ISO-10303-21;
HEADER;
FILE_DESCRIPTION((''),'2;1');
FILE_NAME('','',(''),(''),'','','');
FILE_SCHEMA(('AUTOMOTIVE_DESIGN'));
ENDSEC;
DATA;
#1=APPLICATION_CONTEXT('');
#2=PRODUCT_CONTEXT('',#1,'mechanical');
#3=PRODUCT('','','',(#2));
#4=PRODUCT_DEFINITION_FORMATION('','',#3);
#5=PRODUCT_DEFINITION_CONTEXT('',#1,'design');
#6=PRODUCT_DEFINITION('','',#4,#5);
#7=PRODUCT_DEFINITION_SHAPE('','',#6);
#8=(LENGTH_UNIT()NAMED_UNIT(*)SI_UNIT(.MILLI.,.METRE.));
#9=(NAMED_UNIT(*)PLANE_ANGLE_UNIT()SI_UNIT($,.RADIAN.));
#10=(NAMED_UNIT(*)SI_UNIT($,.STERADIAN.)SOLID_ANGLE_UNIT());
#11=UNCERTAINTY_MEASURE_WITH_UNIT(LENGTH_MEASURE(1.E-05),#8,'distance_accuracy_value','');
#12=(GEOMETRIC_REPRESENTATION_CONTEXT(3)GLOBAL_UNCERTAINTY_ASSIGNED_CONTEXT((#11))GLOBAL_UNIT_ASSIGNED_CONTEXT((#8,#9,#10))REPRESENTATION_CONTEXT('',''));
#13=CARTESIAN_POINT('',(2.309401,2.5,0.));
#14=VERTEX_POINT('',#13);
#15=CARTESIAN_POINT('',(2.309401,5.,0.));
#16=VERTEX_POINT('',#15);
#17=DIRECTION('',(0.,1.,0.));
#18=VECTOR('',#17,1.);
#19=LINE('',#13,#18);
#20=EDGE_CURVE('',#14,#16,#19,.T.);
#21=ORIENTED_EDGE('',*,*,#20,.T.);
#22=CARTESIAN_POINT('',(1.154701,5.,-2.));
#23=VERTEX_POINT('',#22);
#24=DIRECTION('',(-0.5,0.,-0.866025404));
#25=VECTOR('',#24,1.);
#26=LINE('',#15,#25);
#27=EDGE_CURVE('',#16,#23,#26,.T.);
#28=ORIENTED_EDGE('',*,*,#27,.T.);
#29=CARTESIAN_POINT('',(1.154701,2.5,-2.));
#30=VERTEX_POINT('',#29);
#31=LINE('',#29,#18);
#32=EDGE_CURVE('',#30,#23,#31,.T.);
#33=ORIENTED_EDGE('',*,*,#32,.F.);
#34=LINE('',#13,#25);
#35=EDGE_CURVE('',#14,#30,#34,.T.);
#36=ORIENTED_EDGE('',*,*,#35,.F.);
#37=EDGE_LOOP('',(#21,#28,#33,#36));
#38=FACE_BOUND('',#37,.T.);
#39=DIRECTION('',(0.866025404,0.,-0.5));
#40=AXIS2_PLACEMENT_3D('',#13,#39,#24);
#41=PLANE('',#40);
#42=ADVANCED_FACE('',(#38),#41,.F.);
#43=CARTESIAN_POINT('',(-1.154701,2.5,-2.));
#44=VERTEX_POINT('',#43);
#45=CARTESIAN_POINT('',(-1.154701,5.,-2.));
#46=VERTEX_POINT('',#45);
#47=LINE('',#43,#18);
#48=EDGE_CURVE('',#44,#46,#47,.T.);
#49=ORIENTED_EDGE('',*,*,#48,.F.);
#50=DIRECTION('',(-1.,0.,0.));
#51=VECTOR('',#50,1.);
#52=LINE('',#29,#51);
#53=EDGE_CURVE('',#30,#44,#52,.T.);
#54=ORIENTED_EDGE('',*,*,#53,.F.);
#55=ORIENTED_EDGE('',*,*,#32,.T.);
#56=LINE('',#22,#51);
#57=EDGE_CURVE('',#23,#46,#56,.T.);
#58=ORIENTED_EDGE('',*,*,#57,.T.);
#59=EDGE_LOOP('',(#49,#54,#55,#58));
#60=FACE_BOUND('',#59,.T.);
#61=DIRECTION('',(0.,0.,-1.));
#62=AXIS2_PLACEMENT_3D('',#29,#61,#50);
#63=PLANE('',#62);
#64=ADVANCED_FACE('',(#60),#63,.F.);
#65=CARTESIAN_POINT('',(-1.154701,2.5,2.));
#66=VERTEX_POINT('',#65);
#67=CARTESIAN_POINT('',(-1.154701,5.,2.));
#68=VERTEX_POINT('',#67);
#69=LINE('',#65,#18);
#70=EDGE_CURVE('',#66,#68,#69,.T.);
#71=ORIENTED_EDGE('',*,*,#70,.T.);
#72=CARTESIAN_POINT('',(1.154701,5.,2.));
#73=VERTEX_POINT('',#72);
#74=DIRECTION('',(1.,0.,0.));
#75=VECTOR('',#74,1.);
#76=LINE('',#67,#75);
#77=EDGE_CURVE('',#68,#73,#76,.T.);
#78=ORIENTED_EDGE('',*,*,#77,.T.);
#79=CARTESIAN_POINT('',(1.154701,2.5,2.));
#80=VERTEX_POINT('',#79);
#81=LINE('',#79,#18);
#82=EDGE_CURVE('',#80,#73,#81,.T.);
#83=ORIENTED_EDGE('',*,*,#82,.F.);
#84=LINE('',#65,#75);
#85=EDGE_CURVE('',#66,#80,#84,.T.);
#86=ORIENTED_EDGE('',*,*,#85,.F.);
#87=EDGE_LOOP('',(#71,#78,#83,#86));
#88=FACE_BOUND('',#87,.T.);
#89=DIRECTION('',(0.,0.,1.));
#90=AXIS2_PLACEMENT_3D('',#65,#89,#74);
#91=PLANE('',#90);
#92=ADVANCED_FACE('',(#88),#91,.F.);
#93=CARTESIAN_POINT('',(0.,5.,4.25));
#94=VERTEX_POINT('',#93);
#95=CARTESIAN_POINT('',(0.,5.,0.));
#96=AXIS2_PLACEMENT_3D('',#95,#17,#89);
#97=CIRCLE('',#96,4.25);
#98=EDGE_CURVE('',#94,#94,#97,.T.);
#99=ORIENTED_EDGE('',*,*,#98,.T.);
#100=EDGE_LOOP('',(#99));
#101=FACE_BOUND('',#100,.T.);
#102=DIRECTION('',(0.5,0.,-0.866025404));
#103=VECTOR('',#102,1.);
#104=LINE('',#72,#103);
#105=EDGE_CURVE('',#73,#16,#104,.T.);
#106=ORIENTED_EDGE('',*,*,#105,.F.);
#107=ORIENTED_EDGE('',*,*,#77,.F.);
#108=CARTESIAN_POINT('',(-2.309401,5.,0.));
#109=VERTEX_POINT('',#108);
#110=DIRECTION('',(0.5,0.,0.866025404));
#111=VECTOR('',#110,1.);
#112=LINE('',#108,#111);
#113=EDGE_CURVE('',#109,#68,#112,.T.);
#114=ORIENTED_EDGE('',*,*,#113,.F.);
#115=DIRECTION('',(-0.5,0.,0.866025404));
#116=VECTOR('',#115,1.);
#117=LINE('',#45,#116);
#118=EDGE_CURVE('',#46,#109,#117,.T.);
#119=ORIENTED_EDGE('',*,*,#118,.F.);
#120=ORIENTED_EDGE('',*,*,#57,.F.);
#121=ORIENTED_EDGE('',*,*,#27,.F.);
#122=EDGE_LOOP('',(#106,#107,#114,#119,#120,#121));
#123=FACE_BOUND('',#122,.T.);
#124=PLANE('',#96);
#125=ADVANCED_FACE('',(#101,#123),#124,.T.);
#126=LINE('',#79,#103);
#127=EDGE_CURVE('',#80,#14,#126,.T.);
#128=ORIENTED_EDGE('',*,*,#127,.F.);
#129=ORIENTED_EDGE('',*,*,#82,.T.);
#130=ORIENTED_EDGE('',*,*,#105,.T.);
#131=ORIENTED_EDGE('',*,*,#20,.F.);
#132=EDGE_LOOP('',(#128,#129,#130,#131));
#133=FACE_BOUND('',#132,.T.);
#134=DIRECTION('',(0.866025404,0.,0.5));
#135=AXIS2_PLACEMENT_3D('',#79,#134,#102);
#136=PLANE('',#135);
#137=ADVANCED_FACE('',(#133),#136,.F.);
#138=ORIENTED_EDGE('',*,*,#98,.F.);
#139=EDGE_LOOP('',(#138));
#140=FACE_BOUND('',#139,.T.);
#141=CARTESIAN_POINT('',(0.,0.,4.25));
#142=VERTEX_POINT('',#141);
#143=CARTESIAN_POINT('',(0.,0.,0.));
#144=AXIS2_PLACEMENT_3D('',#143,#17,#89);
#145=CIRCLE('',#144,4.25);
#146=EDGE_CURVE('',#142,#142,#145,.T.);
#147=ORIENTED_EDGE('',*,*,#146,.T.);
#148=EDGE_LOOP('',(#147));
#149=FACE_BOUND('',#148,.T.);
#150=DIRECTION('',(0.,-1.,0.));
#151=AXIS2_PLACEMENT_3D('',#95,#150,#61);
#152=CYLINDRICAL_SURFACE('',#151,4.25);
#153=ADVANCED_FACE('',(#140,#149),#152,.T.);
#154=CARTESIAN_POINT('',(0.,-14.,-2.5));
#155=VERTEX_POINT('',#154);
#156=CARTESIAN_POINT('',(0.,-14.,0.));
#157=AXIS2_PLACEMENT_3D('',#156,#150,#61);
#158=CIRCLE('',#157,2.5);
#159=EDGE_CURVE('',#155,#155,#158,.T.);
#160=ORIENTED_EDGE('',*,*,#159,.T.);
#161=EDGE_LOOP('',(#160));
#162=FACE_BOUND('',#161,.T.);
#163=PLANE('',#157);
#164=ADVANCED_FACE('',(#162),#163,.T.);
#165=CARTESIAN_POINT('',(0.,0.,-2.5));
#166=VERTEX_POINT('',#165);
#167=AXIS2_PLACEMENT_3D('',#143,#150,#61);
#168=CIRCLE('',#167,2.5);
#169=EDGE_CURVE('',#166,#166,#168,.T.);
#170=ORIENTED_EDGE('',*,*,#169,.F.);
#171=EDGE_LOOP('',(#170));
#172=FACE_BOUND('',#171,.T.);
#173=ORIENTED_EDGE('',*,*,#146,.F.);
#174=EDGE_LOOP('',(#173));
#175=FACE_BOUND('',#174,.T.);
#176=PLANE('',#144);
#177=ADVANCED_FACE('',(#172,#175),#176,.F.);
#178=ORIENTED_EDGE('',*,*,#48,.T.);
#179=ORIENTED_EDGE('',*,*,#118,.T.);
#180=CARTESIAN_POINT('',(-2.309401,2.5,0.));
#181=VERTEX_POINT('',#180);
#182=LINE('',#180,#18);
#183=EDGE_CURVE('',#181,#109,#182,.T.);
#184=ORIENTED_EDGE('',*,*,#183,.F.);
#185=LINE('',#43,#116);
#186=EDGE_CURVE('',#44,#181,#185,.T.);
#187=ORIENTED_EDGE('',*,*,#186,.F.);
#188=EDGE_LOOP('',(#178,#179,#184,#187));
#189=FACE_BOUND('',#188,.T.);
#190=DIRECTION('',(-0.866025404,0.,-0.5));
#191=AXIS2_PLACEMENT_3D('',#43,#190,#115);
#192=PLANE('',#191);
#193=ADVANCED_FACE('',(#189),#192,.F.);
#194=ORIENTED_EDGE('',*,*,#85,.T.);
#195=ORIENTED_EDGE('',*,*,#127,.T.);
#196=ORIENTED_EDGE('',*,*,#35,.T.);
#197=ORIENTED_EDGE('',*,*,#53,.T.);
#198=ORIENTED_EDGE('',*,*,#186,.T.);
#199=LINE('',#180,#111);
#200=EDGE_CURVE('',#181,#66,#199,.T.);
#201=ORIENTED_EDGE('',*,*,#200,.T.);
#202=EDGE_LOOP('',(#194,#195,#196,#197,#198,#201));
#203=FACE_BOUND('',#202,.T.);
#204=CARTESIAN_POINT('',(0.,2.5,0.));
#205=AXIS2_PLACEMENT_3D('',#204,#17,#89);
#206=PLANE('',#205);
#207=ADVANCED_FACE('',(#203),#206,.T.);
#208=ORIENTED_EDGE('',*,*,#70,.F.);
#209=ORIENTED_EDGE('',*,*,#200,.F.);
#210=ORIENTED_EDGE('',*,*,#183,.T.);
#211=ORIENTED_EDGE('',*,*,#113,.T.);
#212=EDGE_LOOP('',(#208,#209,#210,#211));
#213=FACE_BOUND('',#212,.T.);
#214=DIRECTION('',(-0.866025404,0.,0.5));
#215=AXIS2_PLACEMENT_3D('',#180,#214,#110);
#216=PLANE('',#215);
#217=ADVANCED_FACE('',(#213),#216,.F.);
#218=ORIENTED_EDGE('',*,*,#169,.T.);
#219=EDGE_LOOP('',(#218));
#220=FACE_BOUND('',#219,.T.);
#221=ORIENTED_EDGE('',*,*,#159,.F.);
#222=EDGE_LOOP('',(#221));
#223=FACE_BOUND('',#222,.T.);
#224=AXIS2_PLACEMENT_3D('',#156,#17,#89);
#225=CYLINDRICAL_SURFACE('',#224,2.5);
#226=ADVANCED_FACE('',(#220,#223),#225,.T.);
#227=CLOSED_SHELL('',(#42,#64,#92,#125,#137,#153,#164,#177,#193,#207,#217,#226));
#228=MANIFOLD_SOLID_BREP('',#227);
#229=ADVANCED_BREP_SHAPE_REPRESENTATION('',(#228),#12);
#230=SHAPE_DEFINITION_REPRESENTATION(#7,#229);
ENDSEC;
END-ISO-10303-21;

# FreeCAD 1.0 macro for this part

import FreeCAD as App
import Part
import Sketcher
from FreeCAD import Vector
Q = App.Units.Quantity

doc = App.newDocument("Part")
params = doc.addObject("Spreadsheet::Sheet", "Params")
for row, (alias, value) in enumerate([
    ("sketch1_diameter", "8.5 mm"),
    ("pad1_length", "5 mm"),
    ("pocket1_length", "2.5 mm"),
    ("sketch3_diameter", "5 mm"),
    ("pad2_length", "14 mm"),
], start=1):
    params.set(f"A{row}", alias)
    params.set(f"B{row}", "=" + value)
    params.setAlias(f"B{row}", alias)

body = doc.addObject("PartDesign::Body", "Body")

# Sketch on XZ plane
sketch1 = body.newObject("Sketcher::SketchObject", "Sketch")
sketch1.AttachmentSupport = (doc.getObject("XZ_Plane"), [""])
sketch1.MapMode = "FlatFace"
sketch1.addGeometry(Part.Circle(Vector(0, 0, 0), Vector(0, 0, 1), 4.2), False)
sketch1.addConstraint([
    Sketcher.Constraint("Coincident", 0, 3, -1, 1),
    Sketcher.Constraint("Diameter", 0, Q("8.5 mm")),
])
sketch1.setExpression("Constraints[1]", "Params.sketch1_diameter")
pad1 = body.newObject("PartDesign::Pad", "Pad")
pad1.Profile = sketch1
pad1.setExpression("Length", "Params.pad1_length")
pad1.Reversed = True

# Sketch on XZ plane
sketch2 = body.newObject("Sketcher::SketchObject", "Sketch001")
sketch2.AttachmentSupport = (doc.getObject("XZ_Plane"), [""])
sketch2.MapMode = "FlatFace"
sketch2.AttachmentOffset = App.Placement(Vector(0, 0, -5), App.Rotation())
sketch2.addGeometry([
    Part.LineSegment(Vector(2.3, 0, 0), Vector(1.2, -2, 0)),  # 0
    Part.LineSegment(Vector(1.2, -2, 0), Vector(-1.2, -2, 0)),  # 1
    Part.LineSegment(Vector(-1.2, -2, 0), Vector(-2.3, 0, 0)),  # 2
    Part.LineSegment(Vector(-2.3, 0, 0), Vector(-1.2, 2, 0)),  # 3
    Part.LineSegment(Vector(-1.2, 2, 0), Vector(1.2, 2, 0)),  # 4
    Part.LineSegment(Vector(1.2, 2, 0), Vector(2.3, 0, 0)),  # 5
], False)
sketch2.addConstraint([
    Sketcher.Constraint("Coincident", 0, 2, 1, 1),
    Sketcher.Constraint("Coincident", 1, 2, 2, 1),
    Sketcher.Constraint("Coincident", 2, 2, 3, 1),
    Sketcher.Constraint("Coincident", 3, 2, 4, 1),
    Sketcher.Constraint("Coincident", 4, 2, 5, 1),
    Sketcher.Constraint("Coincident", 5, 2, 0, 1),
    Sketcher.Constraint("Horizontal", 1),
    Sketcher.Constraint("Horizontal", 4),
    Sketcher.Constraint("Symmetric", 0, 2, 3, 2, -1, 1),
    Sketcher.Constraint("Symmetric", 2, 2, 5, 2, -1, 1),
    Sketcher.Constraint("PointOnObject", 2, 2, -1),
    Sketcher.Constraint("Parallel", 2, 5),
    Sketcher.Constraint("Vertical", 1, 2, 3, 2),
    Sketcher.Constraint("Angle", 0, Q("-120 deg")),
    Sketcher.Constraint("DistanceY", 0, 2, -1, 1, Q("2 mm")),
    Sketcher.Constraint("DistanceX", 1, 2, 1, 1, Q("2.309401 mm")),
])
pocket1 = body.newObject("PartDesign::Pocket", "Pocket")
pocket1.Profile = sketch2
pocket1.setExpression("Length", "Params.pocket1_length")
pocket1.Reversed = True

# Sketch on XZ plane
sketch3 = body.newObject("Sketcher::SketchObject", "Sketch002")
sketch3.AttachmentSupport = (doc.getObject("XZ_Plane"), [""])
sketch3.MapMode = "FlatFace"
sketch3.addGeometry(Part.Circle(Vector(0, 0, 0), Vector(0, 0, 1), 2.5), False)
sketch3.addConstraint([
    Sketcher.Constraint("Coincident", 0, 3, -1, 1),
    Sketcher.Constraint("Diameter", 0, Q("5 mm")),
])
sketch3.setExpression("Constraints[1]", "Params.sketch3_diameter")
pad2 = body.newObject("PartDesign::Pad", "Pad001")
pad2.Profile = sketch3
pad2.setExpression("Length", "Params.pad2_length")

doc.recompute()
